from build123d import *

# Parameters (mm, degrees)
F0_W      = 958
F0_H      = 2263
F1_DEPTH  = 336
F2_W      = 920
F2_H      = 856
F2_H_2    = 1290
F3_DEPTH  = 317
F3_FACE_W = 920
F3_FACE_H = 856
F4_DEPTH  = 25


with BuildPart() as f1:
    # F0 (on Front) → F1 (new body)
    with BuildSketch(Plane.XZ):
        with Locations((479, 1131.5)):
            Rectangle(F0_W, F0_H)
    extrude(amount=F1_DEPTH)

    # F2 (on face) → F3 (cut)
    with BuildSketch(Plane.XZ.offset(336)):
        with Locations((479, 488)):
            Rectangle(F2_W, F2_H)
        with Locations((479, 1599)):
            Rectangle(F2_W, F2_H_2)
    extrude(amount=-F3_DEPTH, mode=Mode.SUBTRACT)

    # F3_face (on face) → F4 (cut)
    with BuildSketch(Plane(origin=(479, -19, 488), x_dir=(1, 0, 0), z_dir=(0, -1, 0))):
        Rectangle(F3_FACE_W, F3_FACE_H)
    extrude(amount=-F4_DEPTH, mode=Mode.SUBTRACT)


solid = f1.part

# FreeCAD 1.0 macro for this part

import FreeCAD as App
import Part
import Sketcher

doc = App.newDocument("Part")
body = doc.addObject("PartDesign::Body", "Body")

sketch1 = body.newObject("Sketcher::SketchObject", "Sketch")
sketch1.AttachmentSupport = (doc.getObject("XZ_Plane"), [""])
sketch1.MapMode = "FlatFace"
sketch1.addGeometry([
    Part.LineSegment(App.Vector(0, 2263, 0), App.Vector(0, 0, 0)),
    Part.LineSegment(App.Vector(0, 0, 0), App.Vector(958, 0, 0)),
    Part.LineSegment(App.Vector(958, 0, 0), App.Vector(958, 2263, 0)),
    Part.LineSegment(App.Vector(958, 2263, 0), App.Vector(0, 2263, 0)),
], False)
sketch1.addConstraint([
    Sketcher.Constraint("Coincident", 0, 2, 1, 1),
    Sketcher.Constraint("Coincident", 1, 2, 2, 1),
    Sketcher.Constraint("Coincident", 2, 2, 3, 1),
    Sketcher.Constraint("Coincident", 3, 2, 0, 1),
    Sketcher.Constraint("Vertical", 0),
    Sketcher.Constraint("Horizontal", 1),
    Sketcher.Constraint("Vertical", 2),
    Sketcher.Constraint("Horizontal", 3),
    Sketcher.Constraint("Coincident", 0, 2, -1, 1),
    Sketcher.Constraint("DistanceX", 1, 1, 1, 2, 958.0),
    Sketcher.Constraint("DistanceY", 0, 2, 0, 1, 2263.0),
])
pad1 = body.newObject("PartDesign::Pad", "Pad")
pad1.Profile = sketch1
pad1.Length = 336

sketch2 = body.newObject("Sketcher::SketchObject", "Sketch001")
sketch2.AttachmentSupport = (doc.getObject("XZ_Plane"), [""])
sketch2.MapMode = "FlatFace"
sketch2.AttachmentOffset = App.Placement(App.Vector(0, 0, 336), App.Rotation())
sketch2.addGeometry([
    Part.LineSegment(App.Vector(19, 916, 0), App.Vector(19, 60, 0)),
    Part.LineSegment(App.Vector(19, 60, 0), App.Vector(939, 60, 0)),
    Part.LineSegment(App.Vector(939, 60, 0), App.Vector(939, 916, 0)),
    Part.LineSegment(App.Vector(939, 916, 0), App.Vector(19, 916, 0)),
    Part.LineSegment(App.Vector(19, 2244, 0), App.Vector(19, 954, 0)),
    Part.LineSegment(App.Vector(19, 954, 0), App.Vector(939, 954, 0)),
    Part.LineSegment(App.Vector(939, 954, 0), App.Vector(939, 2244, 0)),
    Part.LineSegment(App.Vector(939, 2244, 0), App.Vector(19, 2244, 0)),
], False)
sketch2.addConstraint([
    Sketcher.Constraint("Coincident", 0, 2, 1, 1),
    Sketcher.Constraint("Coincident", 1, 2, 2, 1),
    Sketcher.Constraint("Coincident", 2, 2, 3, 1),
    Sketcher.Constraint("Coincident", 3, 2, 0, 1),
    Sketcher.Constraint("Coincident", 4, 2, 5, 1),
    Sketcher.Constraint("Coincident", 5, 2, 6, 1),
    Sketcher.Constraint("Coincident", 6, 2, 7, 1),
    Sketcher.Constraint("Coincident", 7, 2, 4, 1),
    Sketcher.Constraint("Vertical", 0),
    Sketcher.Constraint("Horizontal", 1),
    Sketcher.Constraint("Vertical", 2),
    Sketcher.Constraint("Horizontal", 3),
    Sketcher.Constraint("Vertical", 4),
    Sketcher.Constraint("Horizontal", 5),
    Sketcher.Constraint("Vertical", 6),
    Sketcher.Constraint("Horizontal", 7),
    Sketcher.Constraint("Vertical", 3, 2, 4, 2),
    Sketcher.Constraint("Vertical", 2, 2, 5, 2),
    Sketcher.Constraint("DistanceX", 1, 1, 1, 2, 920.0),
    Sketcher.Constraint("DistanceY", 0, 2, 0, 1, 856.0),
    Sketcher.Constraint("DistanceY", 4, 2, 4, 1, 1290.0),
    Sketcher.Constraint("DistanceX", -1, 1, 0, 2, 19.0),
    Sketcher.Constraint("DistanceY", -1, 1, 0, 2, 60.0),
    Sketcher.Constraint("DistanceY", -1, 1, 4, 2, 954.0),
])
pocket1 = body.newObject("PartDesign::Pocket", "Pocket")
pocket1.Profile = sketch2
pocket1.Length = 317

sketch3 = body.newObject("Sketcher::SketchObject", "Sketch002")
sketch3.AttachmentSupport = (doc.getObject("XZ_Plane"), [""])
sketch3.MapMode = "FlatFace"
sketch3.AttachmentOffset = App.Placement(App.Vector(0, 0, 19), App.Rotation())
sketch3.addGeometry([
    Part.LineSegment(App.Vector(19, 916, 0), App.Vector(19, 60, 0)),
    Part.LineSegment(App.Vector(19, 60, 0), App.Vector(939, 60, 0)),
    Part.LineSegment(App.Vector(939, 60, 0), App.Vector(939, 916, 0)),
    Part.LineSegment(App.Vector(939, 916, 0), App.Vector(19, 916, 0)),
], False)
sketch3.addConstraint([
    Sketcher.Constraint("Coincident", 0, 2, 1, 1),
    Sketcher.Constraint("Coincident", 1, 2, 2, 1),
    Sketcher.Constraint("Coincident", 2, 2, 3, 1),
    Sketcher.Constraint("Coincident", 3, 2, 0, 1),
    Sketcher.Constraint("Vertical", 0),
    Sketcher.Constraint("Horizontal", 1),
    Sketcher.Constraint("Vertical", 2),
    Sketcher.Constraint("Horizontal", 3),
    Sketcher.Constraint("DistanceX", 1, 1, 1, 2, 920.0),
    Sketcher.Constraint("DistanceY", 0, 2, 0, 1, 856.0),
    Sketcher.Constraint("DistanceX", -1, 1, 0, 2, 19.0),
    Sketcher.Constraint("DistanceY", -1, 1, 0, 2, 60.0),
])
pocket2 = body.newObject("PartDesign::Pocket", "Pocket001")
pocket2.Profile = sketch3
pocket2.Length = 25

doc.recompute()
